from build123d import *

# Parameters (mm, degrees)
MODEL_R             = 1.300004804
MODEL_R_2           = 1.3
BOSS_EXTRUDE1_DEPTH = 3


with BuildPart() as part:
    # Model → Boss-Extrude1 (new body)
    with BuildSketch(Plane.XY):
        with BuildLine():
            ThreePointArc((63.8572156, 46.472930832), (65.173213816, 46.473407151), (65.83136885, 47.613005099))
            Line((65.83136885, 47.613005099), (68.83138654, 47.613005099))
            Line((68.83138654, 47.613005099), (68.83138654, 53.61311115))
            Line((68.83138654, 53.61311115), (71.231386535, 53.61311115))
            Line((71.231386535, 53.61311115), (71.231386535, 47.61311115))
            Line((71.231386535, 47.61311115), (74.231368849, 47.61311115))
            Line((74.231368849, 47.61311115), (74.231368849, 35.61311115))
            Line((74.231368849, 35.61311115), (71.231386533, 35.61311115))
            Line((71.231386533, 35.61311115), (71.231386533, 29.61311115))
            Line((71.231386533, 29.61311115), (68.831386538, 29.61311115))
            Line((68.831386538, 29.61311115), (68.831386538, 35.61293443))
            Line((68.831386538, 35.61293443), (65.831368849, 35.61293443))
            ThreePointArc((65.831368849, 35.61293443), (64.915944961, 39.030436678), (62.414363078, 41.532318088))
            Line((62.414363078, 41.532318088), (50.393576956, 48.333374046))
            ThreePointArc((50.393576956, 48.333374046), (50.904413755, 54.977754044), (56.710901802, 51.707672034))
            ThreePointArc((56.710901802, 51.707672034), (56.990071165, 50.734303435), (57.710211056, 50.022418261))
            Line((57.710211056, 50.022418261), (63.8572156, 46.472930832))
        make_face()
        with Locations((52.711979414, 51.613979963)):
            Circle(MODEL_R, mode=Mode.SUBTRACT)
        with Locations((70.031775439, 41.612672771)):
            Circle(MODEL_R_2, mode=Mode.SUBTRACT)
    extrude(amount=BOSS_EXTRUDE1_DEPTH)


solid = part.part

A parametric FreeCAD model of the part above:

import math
import FreeCAD as App
import Part
import Sketcher
from FreeCAD import Vector
Q = App.Units.Quantity

doc = App.newDocument("Part")
body = doc.addObject("PartDesign::Body", "Body")

sketch1 = doc.addObject("Sketcher::SketchObject", "Sketch")
body.addObject(sketch1)
sketch1.AttachmentSupport = (doc.XY_Plane, [""])
sketch1.MapMode = "FlatFace"
sketch1.addGeometry([
    Part.ArcOfCircle(Part.Circle(Vector(64.514802, 47.613513, 0), Vector(0, 0, 1), 1.316567), math.radians(-119.964975), math.radians(-0.022125)),
    Part.LineSegment(Vector(63.857216, 46.472931, 0), Vector(57.710211, 50.022418, 0)),
    Part.ArcOfCircle(Part.Circle(Vector(58.710444, 51.754437, 0), Vector(0, 0, 1), 2.000089), math.radians(-178.660207), math.radians(-120.006238)),
    Part.ArcOfCircle(Part.Circle(Vector(52.765838, 51.492816, 0), Vector(0, 0, 1), 3.95091), math.radians(3.117365), math.radians(233.099017)),
    Part.LineSegment(Vector(50.393577, 48.333374, 0), Vector(62.414363, 41.532318, 0)),
    Part.ArcOfCircle(Part.Circle(Vector(58.996768, 35.61355, 0), Vector(0, 0, 1), 6.834601), math.radians(-0.005162), math.radians(59.997147)),
    Part.LineSegment(Vector(65.831369, 35.612934, 0), Vector(68.831387, 35.612934, 0)),
    Part.LineSegment(Vector(68.831387, 35.612934, 0), Vector(68.831387, 29.613111, 0)),
    Part.LineSegment(Vector(68.831387, 29.613111, 0), Vector(71.231387, 29.613111, 0)),
    Part.LineSegment(Vector(71.231387, 29.613111, 0), Vector(71.231387, 35.613111, 0)),
    Part.LineSegment(Vector(71.231387, 35.613111, 0), Vector(74.231369, 35.613111, 0)),
    Part.LineSegment(Vector(74.231369, 35.613111, 0), Vector(74.231369, 47.613111, 0)),
    Part.LineSegment(Vector(74.231369, 47.613111, 0), Vector(71.231387, 47.613111, 0)),
    Part.LineSegment(Vector(71.231387, 47.613111, 0), Vector(71.231387, 53.613111, 0)),
    Part.LineSegment(Vector(71.231387, 53.613111, 0), Vector(68.831387, 53.613111, 0)),
    Part.LineSegment(Vector(68.831387, 53.613111, 0), Vector(68.831387, 47.613005, 0)),
    Part.LineSegment(Vector(68.831387, 47.613005, 0), Vector(65.831369, 47.613005, 0)),
    Part.Circle(Vector(70.031775, 41.612673, 0), Vector(0, 0, 1), 1.3),
    Part.Circle(Vector(52.711979, 51.61398, 0), Vector(0, 0, 1), 1.300005),
], False)
sketch1.addConstraint([
    Sketcher.Constraint("Coincident", 0, 1, 1, 1),
    Sketcher.Constraint("Coincident", 1, 2, 2, 2),
    Sketcher.Constraint("Coincident", 2, 1, 3, 1),
    Sketcher.Constraint("Coincident", 3, 2, 4, 1),
    Sketcher.Constraint("Coincident", 4, 2, 5, 2),
    Sketcher.Constraint("Coincident", 5, 1, 6, 1),
    Sketcher.Constraint("Coincident", 6, 2, 7, 1),
    Sketcher.Constraint("Coincident", 7, 2, 8, 1),
    Sketcher.Constraint("Coincident", 8, 2, 9, 1),
    Sketcher.Constraint("Coincident", 9, 2, 10, 1),
    Sketcher.Constraint("Coincident", 10, 2, 11, 1),
    Sketcher.Constraint("Coincident", 11, 2, 12, 1),
    Sketcher.Constraint("Coincident", 12, 2, 13, 1),
    Sketcher.Constraint("Coincident", 13, 2, 14, 1),
    Sketcher.Constraint("Coincident", 14, 2, 15, 1),
    Sketcher.Constraint("Coincident", 15, 2, 16, 1),
    Sketcher.Constraint("Coincident", 16, 2, 0, 2),
    Sketcher.Constraint("Horizontal", 6),
    Sketcher.Constraint("Vertical", 7),
    Sketcher.Constraint("Horizontal", 8),
    Sketcher.Constraint("Vertical", 9),
    Sketcher.Constraint("Horizontal", 10),
    Sketcher.Constraint("Vertical", 11),
    Sketcher.Constraint("Horizontal", 12),
    Sketcher.Constraint("Vertical", 13),
    Sketcher.Constraint("Horizontal", 14),
    Sketcher.Constraint("Vertical", 15),
    Sketcher.Constraint("Horizontal", 16),
    Sketcher.Constraint("Vertical", 9, 2, 12, 2),
    Sketcher.Constraint("Vertical", 7, 2, 14, 2),
    Sketcher.Constraint("Vertical", 5, 1, 16, 2),
    Sketcher.Constraint("Equal", 9, 13),
    Sketcher.Constraint("Diameter", 17, Q("2.6 mm")),
    Sketcher.Constraint("DistanceY", 9, 1, 9, 2, Q("6 mm")),
    Sketcher.Constraint("DistanceY", 11, 1, 11, 2, Q("12 mm")),
    Sketcher.Constraint("DistanceX", 8, 1, 8, 2, Q("2.4 mm")),
    Sketcher.Constraint("Radius", 5, Q("6.834601 mm")),
    Sketcher.Constraint("Diameter", 18, Q("2.60001 mm")),
    Sketcher.Constraint("Radius", 2, Q("2.000089 mm")),
    Sketcher.Constraint("Radius", 3, Q("3.95091 mm")),
    Sketcher.Constraint("Radius", 0, Q("1.316567 mm")),
    Sketcher.Constraint("DistanceX", -1, 1, 0, 3, Q("64.514802 mm")),
    Sketcher.Constraint("DistanceX", -1, 1, 2, 1, Q("56.710902 mm")),
    Sketcher.Constraint("DistanceY", 4, 2, 1, 2, Q("8.4901 mm")),
    Sketcher.Constraint("Distance", 4, Q("13.81136 mm")),
    Sketcher.Constraint("DistanceX", 6, 1, 6, 2, Q("3.000018 mm")),
    Sketcher.Constraint("DistanceX", 10, 1, 10, 2, Q("2.999982 mm")),
    Sketcher.Constraint("DistanceY", 7, 2, 7, 1, Q("5.999823 mm")),
    Sketcher.Constraint("DistanceY", 15, 2, 15, 1, Q("6.000106 mm")),
    Sketcher.Constraint("DistanceY", -1, 1, 5, 3, Q("35.61355 mm")),
    Sketcher.Constraint("DistanceX", -1, 1, 18, 3, Q("52.711979 mm")),
    Sketcher.Constraint("DistanceY", -1, 1, 18, 3, Q("51.61398 mm")),
    Sketcher.Constraint("DistanceY", -1, 1, 0, 1, Q("46.472931 mm")),
    Sketcher.Constraint("DistanceX", -1, 1, 1, 2, Q("57.710211 mm")),
    Sketcher.Constraint("DistanceY", -1, 1, 1, 2, Q("50.022418 mm")),
    Sketcher.Constraint("DistanceY", -1, 1, 7, 2, Q("29.613111 mm")),
    Sketcher.Constraint("DistanceY", 3, 3, 2, 3, Q("0.261622 mm")),
    Sketcher.Constraint("DistanceX", 3, 3, 5, 3, Q("6.23093 mm")),
    Sketcher.Constraint("DistanceY", 17, 3, 0, 3, Q("6.000841 mm")),
    Sketcher.Constraint("DistanceX", 2, 3, 17, 3, Q("11.321331 mm")),
    Sketcher.Constraint("DistanceX", 2, 3, 0, 1, Q("5.146771 mm")),
])
pad1 = doc.addObject("PartDesign::Pad", "Pad")
body.addObject(pad1)
pad1.Profile = sketch1
pad1.Length = 3

doc.recompute()
